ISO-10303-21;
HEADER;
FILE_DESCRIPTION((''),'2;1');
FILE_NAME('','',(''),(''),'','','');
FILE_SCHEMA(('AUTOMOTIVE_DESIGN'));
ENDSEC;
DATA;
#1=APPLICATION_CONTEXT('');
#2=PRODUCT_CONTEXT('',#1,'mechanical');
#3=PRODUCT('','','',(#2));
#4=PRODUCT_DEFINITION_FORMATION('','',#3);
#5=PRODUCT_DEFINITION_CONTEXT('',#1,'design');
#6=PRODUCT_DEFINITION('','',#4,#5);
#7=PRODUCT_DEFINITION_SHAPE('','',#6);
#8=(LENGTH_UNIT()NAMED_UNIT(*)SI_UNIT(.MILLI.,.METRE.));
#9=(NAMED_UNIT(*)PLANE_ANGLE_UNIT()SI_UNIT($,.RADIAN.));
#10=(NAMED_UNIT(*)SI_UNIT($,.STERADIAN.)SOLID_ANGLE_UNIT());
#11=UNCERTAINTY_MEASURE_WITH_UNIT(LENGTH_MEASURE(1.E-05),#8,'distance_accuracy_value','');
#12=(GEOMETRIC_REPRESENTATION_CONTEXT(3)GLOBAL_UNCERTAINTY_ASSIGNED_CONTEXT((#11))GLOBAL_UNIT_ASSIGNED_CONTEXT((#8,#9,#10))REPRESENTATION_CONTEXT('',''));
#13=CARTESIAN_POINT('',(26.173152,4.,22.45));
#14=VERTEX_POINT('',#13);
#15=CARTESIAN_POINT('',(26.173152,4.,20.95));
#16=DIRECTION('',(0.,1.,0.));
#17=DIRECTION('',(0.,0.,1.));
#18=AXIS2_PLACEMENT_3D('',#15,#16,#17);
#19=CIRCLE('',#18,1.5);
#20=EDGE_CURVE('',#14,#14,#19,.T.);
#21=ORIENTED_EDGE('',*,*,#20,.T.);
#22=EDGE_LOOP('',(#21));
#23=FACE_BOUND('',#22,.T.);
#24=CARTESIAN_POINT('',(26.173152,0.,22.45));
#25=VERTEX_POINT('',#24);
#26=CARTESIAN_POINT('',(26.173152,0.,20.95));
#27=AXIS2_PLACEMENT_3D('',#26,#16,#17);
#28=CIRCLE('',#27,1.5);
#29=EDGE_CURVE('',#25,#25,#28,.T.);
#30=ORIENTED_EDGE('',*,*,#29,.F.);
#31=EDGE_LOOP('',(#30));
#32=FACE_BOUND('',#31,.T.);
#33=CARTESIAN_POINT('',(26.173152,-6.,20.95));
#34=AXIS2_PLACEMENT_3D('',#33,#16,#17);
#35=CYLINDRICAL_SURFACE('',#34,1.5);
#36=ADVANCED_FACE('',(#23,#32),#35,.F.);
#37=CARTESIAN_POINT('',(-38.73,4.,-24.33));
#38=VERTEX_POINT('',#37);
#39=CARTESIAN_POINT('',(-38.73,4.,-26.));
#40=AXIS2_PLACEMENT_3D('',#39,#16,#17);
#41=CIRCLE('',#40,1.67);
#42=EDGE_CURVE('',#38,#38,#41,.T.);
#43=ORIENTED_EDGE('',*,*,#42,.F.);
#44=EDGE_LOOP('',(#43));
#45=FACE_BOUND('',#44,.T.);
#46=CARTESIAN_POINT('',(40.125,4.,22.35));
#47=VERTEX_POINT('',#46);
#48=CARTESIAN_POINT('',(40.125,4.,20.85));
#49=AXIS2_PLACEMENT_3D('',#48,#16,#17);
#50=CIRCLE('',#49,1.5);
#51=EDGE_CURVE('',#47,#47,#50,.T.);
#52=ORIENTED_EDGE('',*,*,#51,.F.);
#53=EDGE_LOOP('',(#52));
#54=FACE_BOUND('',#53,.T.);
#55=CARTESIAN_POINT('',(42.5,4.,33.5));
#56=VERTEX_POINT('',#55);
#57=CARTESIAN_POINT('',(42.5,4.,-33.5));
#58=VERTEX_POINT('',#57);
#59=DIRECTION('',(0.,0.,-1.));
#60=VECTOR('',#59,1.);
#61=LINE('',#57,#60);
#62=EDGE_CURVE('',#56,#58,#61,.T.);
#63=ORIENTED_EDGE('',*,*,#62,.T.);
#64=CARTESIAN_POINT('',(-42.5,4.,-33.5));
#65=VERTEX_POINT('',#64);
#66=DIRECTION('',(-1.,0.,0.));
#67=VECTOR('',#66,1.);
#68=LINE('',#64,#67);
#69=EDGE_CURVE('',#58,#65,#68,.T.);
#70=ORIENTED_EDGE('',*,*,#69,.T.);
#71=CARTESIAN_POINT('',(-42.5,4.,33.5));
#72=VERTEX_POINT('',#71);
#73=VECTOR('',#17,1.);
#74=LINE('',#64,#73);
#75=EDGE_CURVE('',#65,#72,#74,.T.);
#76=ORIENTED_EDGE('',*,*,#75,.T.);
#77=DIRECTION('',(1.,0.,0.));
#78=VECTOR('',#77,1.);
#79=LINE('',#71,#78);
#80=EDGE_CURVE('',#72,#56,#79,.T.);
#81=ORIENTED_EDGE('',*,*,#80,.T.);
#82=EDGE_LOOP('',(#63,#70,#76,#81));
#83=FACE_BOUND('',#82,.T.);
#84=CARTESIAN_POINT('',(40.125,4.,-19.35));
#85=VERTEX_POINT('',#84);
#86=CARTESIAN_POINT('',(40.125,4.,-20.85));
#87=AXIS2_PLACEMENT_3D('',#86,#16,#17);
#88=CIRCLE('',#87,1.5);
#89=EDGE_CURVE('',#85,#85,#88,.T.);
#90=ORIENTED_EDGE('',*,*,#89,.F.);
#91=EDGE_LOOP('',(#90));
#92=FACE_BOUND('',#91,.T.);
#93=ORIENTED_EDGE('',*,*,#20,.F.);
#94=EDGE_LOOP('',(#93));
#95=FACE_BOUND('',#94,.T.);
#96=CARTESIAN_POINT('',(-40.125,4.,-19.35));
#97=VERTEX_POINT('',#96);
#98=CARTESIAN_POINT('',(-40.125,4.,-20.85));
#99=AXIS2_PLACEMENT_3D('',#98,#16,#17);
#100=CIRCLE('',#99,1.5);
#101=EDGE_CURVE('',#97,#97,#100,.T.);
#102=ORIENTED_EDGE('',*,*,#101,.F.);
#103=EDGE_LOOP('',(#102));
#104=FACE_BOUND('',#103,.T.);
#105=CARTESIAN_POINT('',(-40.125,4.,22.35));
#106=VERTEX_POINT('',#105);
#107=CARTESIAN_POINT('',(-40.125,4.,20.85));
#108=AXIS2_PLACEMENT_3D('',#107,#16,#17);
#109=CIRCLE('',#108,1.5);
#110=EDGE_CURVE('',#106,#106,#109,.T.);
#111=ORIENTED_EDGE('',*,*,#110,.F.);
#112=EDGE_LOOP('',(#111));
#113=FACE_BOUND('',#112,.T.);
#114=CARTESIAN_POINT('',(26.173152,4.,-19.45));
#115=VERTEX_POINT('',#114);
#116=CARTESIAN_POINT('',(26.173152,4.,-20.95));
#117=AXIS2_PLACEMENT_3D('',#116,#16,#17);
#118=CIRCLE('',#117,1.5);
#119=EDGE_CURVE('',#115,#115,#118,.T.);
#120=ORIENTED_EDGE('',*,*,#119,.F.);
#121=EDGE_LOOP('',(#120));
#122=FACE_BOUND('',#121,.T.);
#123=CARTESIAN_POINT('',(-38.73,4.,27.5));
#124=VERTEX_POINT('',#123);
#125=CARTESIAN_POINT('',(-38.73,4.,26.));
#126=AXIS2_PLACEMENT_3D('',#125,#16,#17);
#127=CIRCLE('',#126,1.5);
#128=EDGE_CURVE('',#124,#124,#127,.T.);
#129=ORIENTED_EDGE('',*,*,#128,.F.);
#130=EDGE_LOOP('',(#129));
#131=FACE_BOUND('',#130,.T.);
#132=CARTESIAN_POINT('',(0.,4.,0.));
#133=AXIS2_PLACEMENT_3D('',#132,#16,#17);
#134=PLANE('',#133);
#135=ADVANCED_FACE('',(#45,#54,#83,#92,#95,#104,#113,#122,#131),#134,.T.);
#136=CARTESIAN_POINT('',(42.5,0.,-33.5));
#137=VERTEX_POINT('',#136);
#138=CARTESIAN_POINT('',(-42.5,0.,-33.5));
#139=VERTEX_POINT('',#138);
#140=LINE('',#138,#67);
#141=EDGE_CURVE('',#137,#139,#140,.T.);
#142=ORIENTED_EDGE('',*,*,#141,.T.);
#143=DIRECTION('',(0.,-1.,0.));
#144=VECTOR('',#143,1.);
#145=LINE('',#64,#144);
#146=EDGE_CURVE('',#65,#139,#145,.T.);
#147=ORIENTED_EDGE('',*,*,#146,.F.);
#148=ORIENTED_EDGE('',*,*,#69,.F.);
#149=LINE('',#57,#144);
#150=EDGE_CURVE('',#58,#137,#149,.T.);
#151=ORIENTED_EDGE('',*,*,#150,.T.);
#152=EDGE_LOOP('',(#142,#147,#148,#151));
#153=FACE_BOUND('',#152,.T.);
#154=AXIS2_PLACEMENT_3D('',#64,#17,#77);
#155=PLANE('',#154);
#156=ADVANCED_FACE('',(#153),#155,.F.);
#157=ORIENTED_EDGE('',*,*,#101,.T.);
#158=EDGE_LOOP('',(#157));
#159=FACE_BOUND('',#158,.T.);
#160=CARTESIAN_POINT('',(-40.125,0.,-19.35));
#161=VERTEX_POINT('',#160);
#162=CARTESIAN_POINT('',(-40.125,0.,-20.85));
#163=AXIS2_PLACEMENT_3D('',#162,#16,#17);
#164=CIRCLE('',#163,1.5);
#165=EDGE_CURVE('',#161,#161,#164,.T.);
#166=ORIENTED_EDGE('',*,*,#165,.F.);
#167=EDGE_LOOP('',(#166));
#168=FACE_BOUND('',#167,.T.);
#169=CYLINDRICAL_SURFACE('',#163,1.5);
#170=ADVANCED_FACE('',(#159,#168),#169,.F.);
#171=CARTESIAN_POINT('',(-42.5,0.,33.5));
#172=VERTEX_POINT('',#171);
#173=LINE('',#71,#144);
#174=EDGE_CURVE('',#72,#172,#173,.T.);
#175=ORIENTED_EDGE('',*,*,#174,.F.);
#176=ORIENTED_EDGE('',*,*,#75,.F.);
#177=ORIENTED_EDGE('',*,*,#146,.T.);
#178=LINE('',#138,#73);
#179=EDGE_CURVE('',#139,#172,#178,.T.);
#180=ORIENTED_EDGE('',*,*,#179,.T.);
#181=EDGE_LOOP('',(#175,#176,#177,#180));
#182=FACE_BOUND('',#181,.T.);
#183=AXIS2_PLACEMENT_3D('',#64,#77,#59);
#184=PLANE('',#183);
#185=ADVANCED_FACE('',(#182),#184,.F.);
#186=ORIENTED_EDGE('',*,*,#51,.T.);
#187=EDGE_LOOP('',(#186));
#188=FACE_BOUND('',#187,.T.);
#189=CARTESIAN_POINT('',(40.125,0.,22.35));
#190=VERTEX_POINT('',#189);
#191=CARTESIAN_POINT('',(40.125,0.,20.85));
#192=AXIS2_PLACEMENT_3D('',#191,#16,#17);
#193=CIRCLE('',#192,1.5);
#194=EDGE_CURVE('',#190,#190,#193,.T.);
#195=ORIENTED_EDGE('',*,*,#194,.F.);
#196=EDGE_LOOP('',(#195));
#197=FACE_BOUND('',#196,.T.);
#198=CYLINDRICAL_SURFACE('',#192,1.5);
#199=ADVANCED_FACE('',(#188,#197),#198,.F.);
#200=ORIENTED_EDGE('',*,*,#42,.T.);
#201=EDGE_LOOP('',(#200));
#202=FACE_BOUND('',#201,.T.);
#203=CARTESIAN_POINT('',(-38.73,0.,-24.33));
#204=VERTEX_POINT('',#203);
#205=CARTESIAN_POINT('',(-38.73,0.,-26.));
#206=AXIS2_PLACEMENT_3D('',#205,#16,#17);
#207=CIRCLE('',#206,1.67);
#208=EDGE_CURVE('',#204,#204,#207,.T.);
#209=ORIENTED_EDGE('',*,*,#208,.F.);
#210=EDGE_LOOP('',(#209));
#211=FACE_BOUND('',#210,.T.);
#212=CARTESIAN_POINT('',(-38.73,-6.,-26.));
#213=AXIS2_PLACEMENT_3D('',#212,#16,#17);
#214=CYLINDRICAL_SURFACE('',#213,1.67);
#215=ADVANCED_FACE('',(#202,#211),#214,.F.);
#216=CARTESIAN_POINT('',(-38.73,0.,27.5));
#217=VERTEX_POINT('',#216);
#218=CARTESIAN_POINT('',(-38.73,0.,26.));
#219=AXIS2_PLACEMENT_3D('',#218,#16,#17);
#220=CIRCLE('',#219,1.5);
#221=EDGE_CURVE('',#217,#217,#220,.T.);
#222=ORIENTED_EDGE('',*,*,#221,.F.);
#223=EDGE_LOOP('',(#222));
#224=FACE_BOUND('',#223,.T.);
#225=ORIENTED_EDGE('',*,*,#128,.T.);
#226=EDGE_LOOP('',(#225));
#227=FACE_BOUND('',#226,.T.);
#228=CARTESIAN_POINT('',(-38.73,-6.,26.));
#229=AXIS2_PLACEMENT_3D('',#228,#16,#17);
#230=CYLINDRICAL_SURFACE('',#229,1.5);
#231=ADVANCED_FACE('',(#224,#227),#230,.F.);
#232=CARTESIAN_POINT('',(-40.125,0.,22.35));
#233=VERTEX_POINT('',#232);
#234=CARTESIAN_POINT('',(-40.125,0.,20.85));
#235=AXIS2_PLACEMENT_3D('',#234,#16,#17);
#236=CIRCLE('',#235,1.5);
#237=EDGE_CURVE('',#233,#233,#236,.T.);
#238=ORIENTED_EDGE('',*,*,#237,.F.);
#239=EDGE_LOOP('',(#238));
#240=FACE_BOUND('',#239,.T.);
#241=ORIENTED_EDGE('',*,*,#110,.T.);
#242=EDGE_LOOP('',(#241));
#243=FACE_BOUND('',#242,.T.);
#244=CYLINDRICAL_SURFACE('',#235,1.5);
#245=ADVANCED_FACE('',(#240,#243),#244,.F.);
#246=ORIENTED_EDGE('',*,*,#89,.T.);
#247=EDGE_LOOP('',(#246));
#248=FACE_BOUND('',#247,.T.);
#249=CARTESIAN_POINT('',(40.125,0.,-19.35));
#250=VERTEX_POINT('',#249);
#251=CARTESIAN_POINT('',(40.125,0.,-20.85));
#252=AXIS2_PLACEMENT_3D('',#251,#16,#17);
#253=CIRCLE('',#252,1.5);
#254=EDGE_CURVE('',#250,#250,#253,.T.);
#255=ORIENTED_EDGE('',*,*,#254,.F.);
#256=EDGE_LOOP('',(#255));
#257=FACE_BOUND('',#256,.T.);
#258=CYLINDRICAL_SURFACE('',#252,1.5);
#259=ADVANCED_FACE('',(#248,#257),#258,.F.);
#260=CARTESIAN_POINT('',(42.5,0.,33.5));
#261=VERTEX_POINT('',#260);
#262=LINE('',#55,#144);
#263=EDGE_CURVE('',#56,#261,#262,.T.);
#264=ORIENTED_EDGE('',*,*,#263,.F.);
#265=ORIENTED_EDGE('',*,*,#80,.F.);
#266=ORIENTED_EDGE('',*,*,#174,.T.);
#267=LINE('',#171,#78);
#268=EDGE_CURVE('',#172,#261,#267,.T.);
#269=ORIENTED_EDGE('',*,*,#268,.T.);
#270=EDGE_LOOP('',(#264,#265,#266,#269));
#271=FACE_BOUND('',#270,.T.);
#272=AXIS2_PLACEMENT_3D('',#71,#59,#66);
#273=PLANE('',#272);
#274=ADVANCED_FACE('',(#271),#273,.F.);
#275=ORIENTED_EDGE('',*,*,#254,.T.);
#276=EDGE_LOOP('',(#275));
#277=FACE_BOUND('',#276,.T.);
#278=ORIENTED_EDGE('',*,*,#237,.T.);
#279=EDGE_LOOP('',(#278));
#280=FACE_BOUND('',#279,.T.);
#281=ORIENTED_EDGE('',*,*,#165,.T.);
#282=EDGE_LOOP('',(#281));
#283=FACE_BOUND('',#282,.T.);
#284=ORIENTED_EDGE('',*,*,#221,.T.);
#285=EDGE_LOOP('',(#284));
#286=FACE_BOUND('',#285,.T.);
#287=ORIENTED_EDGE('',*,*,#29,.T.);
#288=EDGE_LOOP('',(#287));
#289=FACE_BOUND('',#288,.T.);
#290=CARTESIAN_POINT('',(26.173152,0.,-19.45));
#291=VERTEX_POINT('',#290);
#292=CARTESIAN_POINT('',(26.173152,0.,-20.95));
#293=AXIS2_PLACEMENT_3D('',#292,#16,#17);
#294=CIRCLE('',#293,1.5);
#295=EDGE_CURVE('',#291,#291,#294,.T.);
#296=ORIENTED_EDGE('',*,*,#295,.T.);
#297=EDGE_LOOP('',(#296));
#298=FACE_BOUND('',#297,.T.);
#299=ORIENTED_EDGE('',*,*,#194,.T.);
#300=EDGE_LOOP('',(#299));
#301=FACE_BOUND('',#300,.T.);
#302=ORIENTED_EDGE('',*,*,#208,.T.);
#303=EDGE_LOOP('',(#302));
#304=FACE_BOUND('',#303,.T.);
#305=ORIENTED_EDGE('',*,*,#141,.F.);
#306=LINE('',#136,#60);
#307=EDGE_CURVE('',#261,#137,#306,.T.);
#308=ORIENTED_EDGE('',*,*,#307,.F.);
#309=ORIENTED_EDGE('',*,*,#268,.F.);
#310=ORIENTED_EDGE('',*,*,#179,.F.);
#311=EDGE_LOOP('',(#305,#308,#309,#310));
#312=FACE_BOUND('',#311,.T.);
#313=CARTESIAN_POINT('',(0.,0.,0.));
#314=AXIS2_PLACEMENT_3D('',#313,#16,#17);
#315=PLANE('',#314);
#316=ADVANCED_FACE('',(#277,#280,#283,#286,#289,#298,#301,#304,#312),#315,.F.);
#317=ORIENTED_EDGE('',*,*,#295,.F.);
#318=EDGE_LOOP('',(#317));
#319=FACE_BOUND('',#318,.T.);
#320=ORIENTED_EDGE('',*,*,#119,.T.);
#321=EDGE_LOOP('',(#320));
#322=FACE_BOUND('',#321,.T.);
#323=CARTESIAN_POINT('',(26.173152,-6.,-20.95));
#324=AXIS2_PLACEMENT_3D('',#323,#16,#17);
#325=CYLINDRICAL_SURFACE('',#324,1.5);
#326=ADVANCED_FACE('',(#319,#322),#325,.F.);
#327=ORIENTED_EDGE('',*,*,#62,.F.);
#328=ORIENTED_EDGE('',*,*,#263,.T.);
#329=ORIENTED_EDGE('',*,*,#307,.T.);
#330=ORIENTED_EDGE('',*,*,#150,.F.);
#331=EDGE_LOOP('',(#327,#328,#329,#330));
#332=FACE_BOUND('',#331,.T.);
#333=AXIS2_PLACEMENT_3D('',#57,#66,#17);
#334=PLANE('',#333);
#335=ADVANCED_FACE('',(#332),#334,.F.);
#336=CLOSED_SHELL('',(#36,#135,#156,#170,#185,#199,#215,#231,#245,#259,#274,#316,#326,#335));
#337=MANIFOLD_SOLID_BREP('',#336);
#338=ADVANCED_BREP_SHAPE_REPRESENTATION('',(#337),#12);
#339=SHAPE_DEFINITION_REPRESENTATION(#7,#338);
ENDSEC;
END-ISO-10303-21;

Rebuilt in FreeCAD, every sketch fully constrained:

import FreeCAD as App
import Part
import Sketcher


def add_polygon(sketch, points):
    """Adds a closed chain of lines whose ends are joined by coincident constraints."""
    first, n = sketch.GeometryCount, len(points)
    for a, b in zip(points, points[1:] + points[:1]):
        sketch.addGeometry(Part.LineSegment(App.Vector(*a, 0), App.Vector(*b, 0)), False)
    for i in range(n):
        sketch.addConstraint(Sketcher.Constraint("Coincident", first + i, 2, first + (i + 1) % n, 1))

doc = App.newDocument("Part")
body = doc.addObject("PartDesign::Body", "Body")

sketch1 = body.newObject("Sketcher::SketchObject", "Sketch")
sketch1.AttachmentSupport = (doc.getObject("XZ_Plane"), [""])
sketch1.MapMode = "FlatFace"
add_polygon(sketch1, [(-42.5, -33.5), (-42.5, 33.5), (42.5, 33.5), (42.5, -33.5)])
sketch1.addConstraint([
    Sketcher.Constraint("Vertical", 0),
    Sketcher.Constraint("Horizontal", 1),
    Sketcher.Constraint("Vertical", 2),
    Sketcher.Constraint("Horizontal", 3),
    Sketcher.Constraint("Symmetric", 0, 2, 2, 2, -1, 1),
    Sketcher.Constraint("DistanceX", 1, 1, 1, 2, 85.0),
    Sketcher.Constraint("DistanceY", 0, 1, 0, 2, 67.0),
])
pad1 = body.newObject("PartDesign::Pad", "Pad")
pad1.Profile = sketch1
pad1.Length = 4
pad1.Reversed = True

sketch2 = body.newObject("Sketcher::SketchObject", "Sketch001")
sketch2.AttachmentSupport = (doc.getObject("XZ_Plane"), [""])
sketch2.MapMode = "FlatFace"
sketch2.AttachmentOffset = App.Placement(App.Vector(0, 0, -4), App.Rotation())
sketch2.addGeometry([
    Part.Circle(App.Vector(-40.125, -20.85, 0), App.Vector(0, 0, 1), 1.5),
    Part.Circle(App.Vector(-40.125, 20.85, 0), App.Vector(0, 0, 1), 1.5),
    Part.Circle(App.Vector(40.125, -20.85, 0), App.Vector(0, 0, 1), 1.5),
    Part.Circle(App.Vector(40.125, 20.85, 0), App.Vector(0, 0, 1), 1.5),
], False)
sketch2.addConstraint([
    Sketcher.Constraint("Equal", 0, 1),
    Sketcher.Constraint("Equal", 1, 2),
    Sketcher.Constraint("Equal", 2, 3),
    Sketcher.Constraint("Symmetric", 1, 3, 2, 3, -1, 1),
    Sketcher.Constraint("Symmetric", 0, 3, 3, 3, -1, 1),
    Sketcher.Constraint("Symmetric", 0, 3, 2, 3, -2),
    Sketcher.Constraint("Diameter", 0, 3.0),
    Sketcher.Constraint("DistanceY", 0, 3, 1, 3, 41.7),
    Sketcher.Constraint("DistanceX", 0, 3, 2, 3, 80.25),
])
pocket1 = body.newObject("PartDesign::Pocket", "Pocket")
pocket1.Profile = sketch2
pocket1.Length = 4
pocket1.Reversed = True

sketch3 = body.newObject("Sketcher::SketchObject", "Sketch002")
sketch3.AttachmentSupport = (doc.getObject("XZ_Plane"), [""])
sketch3.MapMode = "FlatFace"
sketch3.AttachmentOffset = App.Placement(App.Vector(0, 0, -4), App.Rotation())
sketch3.addGeometry([
    Part.Circle(App.Vector(26.173152, -20.95, 0), App.Vector(0, 0, 1), 1.5),
    Part.Circle(App.Vector(26.173152, 20.95, 0), App.Vector(0, 0, 1), 1.5),
    Part.Circle(App.Vector(-38.73, -26, 0), App.Vector(0, 0, 1), 1.67),
    Part.Circle(App.Vector(-38.73, 26, 0), App.Vector(0, 0, 1), 1.5),
], False)
sketch3.addConstraint([
    Sketcher.Constraint("Equal", 0, 1),
    Sketcher.Constraint("Equal", 1, 3),
    Sketcher.Constraint("Symmetric", 0, 3, 1, 3, -1),
    Sketcher.Constraint("Symmetric", 2, 3, 3, 3, -1),
    Sketcher.Constraint("Diameter", 0, 3.0),
    Sketcher.Constraint("Diameter", 2, 3.34),
    Sketcher.Constraint("DistanceY", 2, 3, -1, 1, 26.0),
    Sketcher.Constraint("DistanceY", 0, 3, 1, 3, 41.9),
    Sketcher.Constraint("DistanceX", 2, 3, -1, 1, 38.73),
    Sketcher.Constraint("DistanceX", -1, 1, 0, 3, 26.173152),
])
pocket2 = body.newObject("PartDesign::Pocket", "Pocket001")
pocket2.Profile = sketch3
pocket2.Length = 10
pocket2.Reversed = True

doc.recompute()
